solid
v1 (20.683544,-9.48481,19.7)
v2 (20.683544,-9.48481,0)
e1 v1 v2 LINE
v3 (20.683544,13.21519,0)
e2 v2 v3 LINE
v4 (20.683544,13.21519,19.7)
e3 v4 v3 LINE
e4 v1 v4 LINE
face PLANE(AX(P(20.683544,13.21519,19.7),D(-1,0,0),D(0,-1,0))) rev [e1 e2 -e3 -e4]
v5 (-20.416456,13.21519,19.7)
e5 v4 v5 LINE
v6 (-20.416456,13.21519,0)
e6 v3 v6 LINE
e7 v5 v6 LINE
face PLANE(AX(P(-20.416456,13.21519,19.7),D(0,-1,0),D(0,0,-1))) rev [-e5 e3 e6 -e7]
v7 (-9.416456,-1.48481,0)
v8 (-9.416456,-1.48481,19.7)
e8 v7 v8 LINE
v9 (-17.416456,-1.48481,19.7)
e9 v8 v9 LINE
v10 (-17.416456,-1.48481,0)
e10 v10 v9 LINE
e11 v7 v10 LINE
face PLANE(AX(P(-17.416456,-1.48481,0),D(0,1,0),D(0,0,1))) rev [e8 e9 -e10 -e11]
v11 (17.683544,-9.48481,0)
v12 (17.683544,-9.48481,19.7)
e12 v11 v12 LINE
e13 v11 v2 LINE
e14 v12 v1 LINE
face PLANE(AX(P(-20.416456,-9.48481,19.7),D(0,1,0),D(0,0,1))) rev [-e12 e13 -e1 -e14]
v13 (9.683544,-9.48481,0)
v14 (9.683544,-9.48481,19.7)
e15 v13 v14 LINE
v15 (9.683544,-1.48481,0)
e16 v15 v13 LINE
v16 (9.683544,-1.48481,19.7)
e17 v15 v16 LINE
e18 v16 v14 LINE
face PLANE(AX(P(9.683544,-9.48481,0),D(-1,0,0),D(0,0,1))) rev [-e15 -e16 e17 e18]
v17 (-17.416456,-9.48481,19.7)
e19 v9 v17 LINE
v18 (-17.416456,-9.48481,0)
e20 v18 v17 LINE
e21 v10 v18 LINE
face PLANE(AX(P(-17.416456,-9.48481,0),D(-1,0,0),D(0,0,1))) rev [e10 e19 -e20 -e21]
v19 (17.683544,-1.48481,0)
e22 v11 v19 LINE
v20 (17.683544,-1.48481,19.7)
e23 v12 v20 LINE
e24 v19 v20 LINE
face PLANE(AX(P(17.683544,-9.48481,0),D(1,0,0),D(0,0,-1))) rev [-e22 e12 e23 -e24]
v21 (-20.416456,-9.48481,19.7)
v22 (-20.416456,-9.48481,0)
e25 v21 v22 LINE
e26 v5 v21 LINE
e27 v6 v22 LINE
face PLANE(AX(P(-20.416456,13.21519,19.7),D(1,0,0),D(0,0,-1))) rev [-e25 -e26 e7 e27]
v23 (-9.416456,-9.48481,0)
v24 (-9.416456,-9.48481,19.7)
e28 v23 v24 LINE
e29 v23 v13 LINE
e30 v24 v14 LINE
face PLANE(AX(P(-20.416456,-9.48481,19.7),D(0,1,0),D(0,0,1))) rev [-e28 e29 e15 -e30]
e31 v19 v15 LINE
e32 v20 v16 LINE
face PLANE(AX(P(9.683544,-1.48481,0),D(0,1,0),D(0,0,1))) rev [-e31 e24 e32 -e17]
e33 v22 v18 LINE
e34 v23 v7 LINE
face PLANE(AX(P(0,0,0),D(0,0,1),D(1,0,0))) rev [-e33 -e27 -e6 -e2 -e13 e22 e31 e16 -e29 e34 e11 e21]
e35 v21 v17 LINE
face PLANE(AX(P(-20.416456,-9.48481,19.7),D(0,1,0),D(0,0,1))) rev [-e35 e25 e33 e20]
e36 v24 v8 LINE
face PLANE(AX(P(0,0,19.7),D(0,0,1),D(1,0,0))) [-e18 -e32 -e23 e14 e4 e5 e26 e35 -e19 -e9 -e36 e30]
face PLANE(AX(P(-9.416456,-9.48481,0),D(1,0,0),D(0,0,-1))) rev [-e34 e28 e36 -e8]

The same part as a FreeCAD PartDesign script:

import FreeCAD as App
import Part
import Sketcher


def add_polygon(sketch, points):
    """Adds a closed chain of lines whose ends are joined by coincident constraints."""
    first, n = sketch.GeometryCount, len(points)
    for a, b in zip(points, points[1:] + points[:1]):
        sketch.addGeometry(Part.LineSegment(App.Vector(*a, 0), App.Vector(*b, 0)), False)
    for i in range(n):
        sketch.addConstraint(Sketcher.Constraint("Coincident", first + i, 2, first + (i + 1) % n, 1))

doc = App.newDocument("Part")
params = doc.addObject("Spreadsheet::Sheet", "Params")
for row, (alias, value) in enumerate([
    ("sketch1_width", "41.1 mm"),
    ("sketch1_height", "22.7 mm"),
    ("pad1_length", "19.7 mm"),
    ("sketch2_width", "8 mm"),
], start=1):
    params.set(f"A{row}", alias)
    params.set(f"B{row}", "=" + value)
    params.setAlias(f"B{row}", alias)

body = doc.addObject("PartDesign::Body", "Body")

# Sketch on XY plane
sketch1 = body.newObject("Sketcher::SketchObject", "Sketch")
sketch1.AttachmentSupport = (doc.getObject("XY_Plane"), [""])
sketch1.MapMode = "FlatFace"
add_polygon(sketch1, [(-20.416456, 13.21519), (-20.416456, -9.48481), (20.683544, -9.48481), (20.683544, 13.21519)])  # lines 0-3
sketch1.addConstraint([
    Sketcher.Constraint("Vertical", 0),
    Sketcher.Constraint("Horizontal", 1),
    Sketcher.Constraint("Vertical", 2),
    Sketcher.Constraint("Horizontal", 3),
    Sketcher.Constraint("DistanceX", 1, 1, 1, 2, 41.1),
    Sketcher.Constraint("DistanceY", 0, 2, 0, 1, 22.7),
    Sketcher.Constraint("DistanceY", 0, 2, -1, 1, 9.48481),
    Sketcher.Constraint("DistanceX", 0, 2, -1, 1, 20.416456),
])
sketch1.setExpression("Constraints[8]", "Params.sketch1_width")
sketch1.setExpression("Constraints[9]", "Params.sketch1_height")
pad1 = body.newObject("PartDesign::Pad", "Pad")
pad1.Profile = sketch1
pad1.setExpression("Length", "Params.pad1_length")

# Sketch on XY plane
sketch2 = body.newObject("Sketcher::SketchObject", "Sketch001")
sketch2.AttachmentSupport = (doc.getObject("XY_Plane"), [""])
sketch2.MapMode = "FlatFace"
sketch2.AttachmentOffset = App.Placement(App.Vector(0, 0, 19.7), App.Rotation())
add_polygon(sketch2, [(-17.416456, -1.48481), (-17.416456, -9.48481), (-9.416456, -9.48481), (-9.416456, -1.48481)])  # lines 0-3
add_polygon(sketch2, [(9.683544, -1.48481), (9.683544, -9.48481), (17.683544, -9.48481), (17.683544, -1.48481)])  # lines 4-7
sketch2.addConstraint([
    Sketcher.Constraint("Vertical", 0),
    Sketcher.Constraint("Horizontal", 1),
    Sketcher.Constraint("Vertical", 2),
    Sketcher.Constraint("Horizontal", 3),
    Sketcher.Constraint("Vertical", 4),
    Sketcher.Constraint("Horizontal", 5),
    Sketcher.Constraint("Vertical", 6),
    Sketcher.Constraint("Horizontal", 7),
    Sketcher.Constraint("Horizontal", 1, 2, 4, 2),
    Sketcher.Constraint("Horizontal", 3, 2, 6, 2),
    Sketcher.Constraint("Equal", 3, 5),
    Sketcher.Constraint("Equal", 7, 0),
    Sketcher.Constraint("DistanceX", 1, 1, 1, 2, 8.0),
    Sketcher.Constraint("DistanceX", 1, 2, 4, 2, 19.1),
    Sketcher.Constraint("DistanceY", 0, 2, -1, 1, 9.48481),
    Sketcher.Constraint("DistanceX", 0, 2, -1, 1, 17.416456),
])
sketch2.setExpression("Constraints[20]", "Params.sketch2_width")
pocket1 = body.newObject("PartDesign::Pocket", "Pocket")
pocket1.Profile = sketch2
pocket1.Type = "ThroughAll"

doc.recompute()
